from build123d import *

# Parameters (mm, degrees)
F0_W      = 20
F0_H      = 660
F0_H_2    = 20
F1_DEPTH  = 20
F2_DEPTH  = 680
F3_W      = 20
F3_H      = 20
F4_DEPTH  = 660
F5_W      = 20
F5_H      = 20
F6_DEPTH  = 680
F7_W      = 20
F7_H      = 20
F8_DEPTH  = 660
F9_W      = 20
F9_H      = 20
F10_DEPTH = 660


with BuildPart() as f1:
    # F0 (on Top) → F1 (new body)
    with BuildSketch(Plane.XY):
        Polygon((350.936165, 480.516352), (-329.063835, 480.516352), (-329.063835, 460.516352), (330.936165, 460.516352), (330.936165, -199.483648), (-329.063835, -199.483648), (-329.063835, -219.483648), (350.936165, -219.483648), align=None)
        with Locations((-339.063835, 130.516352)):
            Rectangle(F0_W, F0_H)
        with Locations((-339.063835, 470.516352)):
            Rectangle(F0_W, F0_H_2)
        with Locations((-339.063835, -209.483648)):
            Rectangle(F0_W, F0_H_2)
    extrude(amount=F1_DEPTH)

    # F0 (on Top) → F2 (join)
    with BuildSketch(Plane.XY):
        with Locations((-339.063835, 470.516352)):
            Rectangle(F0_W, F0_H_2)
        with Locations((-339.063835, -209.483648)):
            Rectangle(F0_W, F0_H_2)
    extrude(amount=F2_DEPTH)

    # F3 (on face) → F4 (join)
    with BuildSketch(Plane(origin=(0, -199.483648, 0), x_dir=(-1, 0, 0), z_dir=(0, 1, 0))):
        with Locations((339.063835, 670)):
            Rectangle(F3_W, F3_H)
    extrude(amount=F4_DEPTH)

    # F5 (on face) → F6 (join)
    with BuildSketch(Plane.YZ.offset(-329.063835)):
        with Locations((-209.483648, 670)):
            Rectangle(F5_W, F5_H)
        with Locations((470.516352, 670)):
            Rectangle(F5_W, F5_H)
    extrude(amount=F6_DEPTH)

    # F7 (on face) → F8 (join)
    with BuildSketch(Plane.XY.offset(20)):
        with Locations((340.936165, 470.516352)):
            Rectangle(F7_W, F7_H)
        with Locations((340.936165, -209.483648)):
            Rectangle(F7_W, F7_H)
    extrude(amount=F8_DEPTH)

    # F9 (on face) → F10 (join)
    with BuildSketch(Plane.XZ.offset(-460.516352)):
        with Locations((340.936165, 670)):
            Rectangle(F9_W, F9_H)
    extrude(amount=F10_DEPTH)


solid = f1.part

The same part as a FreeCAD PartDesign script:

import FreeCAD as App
import Part
import Sketcher

V = App.Vector


def add_polygon(sketch, points):
    """Adds a closed chain of lines whose ends are joined by coincident constraints."""
    first, n = sketch.GeometryCount, len(points)
    for a, b in zip(points, points[1:] + points[:1]):
        sketch.addGeometry(Part.LineSegment(App.Vector(*a, 0), App.Vector(*b, 0)), False)
    for i in range(n):
        sketch.addConstraint(Sketcher.Constraint("Coincident", first + i, 2, first + (i + 1) % n, 1))

doc = App.newDocument("Part")
params = doc.addObject("Spreadsheet::Sheet", "Params")
for row, (alias, value) in enumerate([
    ("sketch1_width", "700 mm"),
    ("sketch1_width2", "660 mm"),
    ("pad1_length", "20 mm"),
    ("sketch2_width", "20 mm"),
    ("pad2_length", "680 mm"),
    ("sketch3_width", "20 mm"),
    ("pad3_length", "660 mm"),
    ("sketch4_width", "20 mm"),
    ("pad4_length", "680 mm"),
    ("sketch5_width", "20 mm"),
    ("pad5_length", "660 mm"),
    ("sketch6_width", "20 mm"),
    ("pad6_length", "660 mm"),
], start=1):
    params.set(f"A{row}", alias)
    params.set(f"B{row}", "=" + value)
    params.setAlias(f"B{row}", alias)

body = doc.addObject("PartDesign::Body", "Body")

# Sketch on XY plane
sketch1 = doc.addObject("Sketcher::SketchObject", "Sketch")
body.addObject(sketch1)
sketch1.AttachmentSupport = (doc.XY_Plane, [""])
sketch1.MapMode = "FlatFace"
add_polygon(sketch1, [(-349, 481), (-349, -219), (351, -219), (351, 481)])  # lines 0-3
add_polygon(sketch1, [(331, -199), (-329, -199), (-329, 461), (331, 461)])  # lines 4-7
sketch1.addConstraint([
    Sketcher.Constraint("Vertical", 0),
    Sketcher.Constraint("Horizontal", 1),
    Sketcher.Constraint("Vertical", 2),
    Sketcher.Constraint("Horizontal", 3),
    Sketcher.Constraint("Horizontal", 4),
    Sketcher.Constraint("Vertical", 5),
    Sketcher.Constraint("Horizontal", 6),
    Sketcher.Constraint("Vertical", 7),
    Sketcher.Constraint("Equal", 3, 0),
    Sketcher.Constraint("Equal", 6, 5),
    Sketcher.Constraint("DistanceX", 1, 1, 1, 2, 700.0),
    Sketcher.Constraint("DistanceX", 4, 2, 4, 1, 660.0),
    Sketcher.Constraint("DistanceX", 0, 2, 4, 2, 20.0),
    Sketcher.Constraint("DistanceY", 0, 2, 4, 2, 20.0),
    Sketcher.Constraint("DistanceY", -1, 1, 2, 2, 480.516352),
    Sketcher.Constraint("DistanceX", 0, 2, -1, 1, 349.063835),
])
sketch1.setExpression("Constraints[18]", "Params.sketch1_width")
sketch1.setExpression("Constraints[19]", "Params.sketch1_width2")
pad1 = doc.addObject("PartDesign::Pad", "Pad")
body.addObject(pad1)
pad1.Profile = sketch1
pad1.setExpression("Length", "Params.pad1_length")

# Sketch on XY plane
sketch2 = doc.addObject("Sketcher::SketchObject", "Sketch001")
body.addObject(sketch2)
sketch2.AttachmentSupport = (doc.XY_Plane, [""])
sketch2.MapMode = "FlatFace"
add_polygon(sketch2, [(-349, 481), (-349, 461), (-329, 461), (-329, 481)])  # lines 0-3
add_polygon(sketch2, [(-349, -199), (-349, -219), (-329, -219), (-329, -199)])  # lines 4-7
sketch2.addConstraint([
    Sketcher.Constraint("Vertical", 0),
    Sketcher.Constraint("Horizontal", 1),
    Sketcher.Constraint("Vertical", 2),
    Sketcher.Constraint("Horizontal", 3),
    Sketcher.Constraint("Vertical", 4),
    Sketcher.Constraint("Horizontal", 5),
    Sketcher.Constraint("Vertical", 6),
    Sketcher.Constraint("Horizontal", 7),
    Sketcher.Constraint("Vertical", 3, 2, 4, 2),
    Sketcher.Constraint("Vertical", 2, 2, 5, 2),
    Sketcher.Constraint("Equal", 7, 0),
    Sketcher.Constraint("Equal", 2, 4),
    Sketcher.Constraint("DistanceX", 1, 1, 1, 2, 20.0),
    Sketcher.Constraint("DistanceY", 4, 2, 0, 2, 680.0),
    Sketcher.Constraint("DistanceY", -1, 1, 0, 2, 460.516352),
    Sketcher.Constraint("DistanceX", 0, 2, -1, 1, 349.063835),
])
sketch2.setExpression("Constraints[20]", "Params.sketch2_width")
pad2 = doc.addObject("PartDesign::Pad", "Pad001")
body.addObject(pad2)
pad2.Profile = sketch2
pad2.setExpression("Length", "Params.pad2_length")

# Sketch on XZ plane
sketch3 = doc.addObject("Sketcher::SketchObject", "Sketch002")
body.addObject(sketch3)
sketch3.AttachmentSupport = (doc.XZ_Plane, [""])
sketch3.MapMode = "FlatFace"
sketch3.AttachmentOffset = App.Placement(V(0, 0, 199.483648), App.Rotation())
add_polygon(sketch3, [(-329, 680), (-329, 660), (-349, 660), (-349, 680)])  # lines 0-3
sketch3.addConstraint([
    Sketcher.Constraint("Vertical", 0),
    Sketcher.Constraint("Horizontal", 1),
    Sketcher.Constraint("Vertical", 2),
    Sketcher.Constraint("Horizontal", 3),
    Sketcher.Constraint("Equal", 3, 0),
    Sketcher.Constraint("DistanceX", 1, 2, 1, 1, 20.0),
    Sketcher.Constraint("DistanceY", -1, 1, 0, 2, 660.0),
    Sketcher.Constraint("DistanceX", 0, 2, -1, 1, 329.063835),
])
sketch3.setExpression("Constraints[9]", "Params.sketch3_width")
pad3 = doc.addObject("PartDesign::Pad", "Pad002")
body.addObject(pad3)
pad3.Profile = sketch3
pad3.setExpression("Length", "Params.pad3_length")
pad3.Reversed = True

# Sketch on YZ plane
sketch4 = doc.addObject("Sketcher::SketchObject", "Sketch003")
body.addObject(sketch4)
sketch4.AttachmentSupport = (doc.YZ_Plane, [""])
sketch4.MapMode = "FlatFace"
sketch4.AttachmentOffset = App.Placement(V(0, 0, -329.063835), App.Rotation())
add_polygon(sketch4, [(-219, 680), (-219, 660), (-199, 660), (-199, 680)])  # lines 0-3
add_polygon(sketch4, [(461, 680), (461, 660), (481, 660), (481, 680)])  # lines 4-7
sketch4.addConstraint([
    Sketcher.Constraint("Vertical", 0),
    Sketcher.Constraint("Horizontal", 1),
    Sketcher.Constraint("Vertical", 2),
    Sketcher.Constraint("Horizontal", 3),
    Sketcher.Constraint("Vertical", 4),
    Sketcher.Constraint("Horizontal", 5),
    Sketcher.Constraint("Vertical", 6),
    Sketcher.Constraint("Horizontal", 7),
    Sketcher.Constraint("Horizontal", 1, 2, 4, 2),
    Sketcher.Constraint("Horizontal", 3, 2, 6, 2),
    Sketcher.Constraint("Equal", 3, 5),
    Sketcher.Constraint("Equal", 7, 0),
    Sketcher.Constraint("DistanceX", 1, 1, 1, 2, 20.0),
    Sketcher.Constraint("DistanceY", -1, 1, 0, 2, 660.0),
    Sketcher.Constraint("DistanceX", 1, 2, 4, 2, 660.0),
    Sketcher.Constraint("DistanceX", -1, 1, 4, 2, 460.516352),
])
sketch4.setExpression("Constraints[20]", "Params.sketch4_width")
pad4 = doc.addObject("PartDesign::Pad", "Pad003")
body.addObject(pad4)
pad4.Profile = sketch4
pad4.setExpression("Length", "Params.pad4_length")

# Sketch on XY plane
sketch5 = doc.addObject("Sketcher::SketchObject", "Sketch004")
body.addObject(sketch5)
sketch5.AttachmentSupport = (doc.XY_Plane, [""])
sketch5.MapMode = "FlatFace"
sketch5.AttachmentOffset = App.Placement(V(0, 0, 20), App.Rotation())
add_polygon(sketch5, [(331, 481), (331, 461), (351, 461), (351, 481)])  # lines 0-3
add_polygon(sketch5, [(331, -199), (331, -219), (351, -219), (351, -199)])  # lines 4-7
sketch5.addConstraint([
    Sketcher.Constraint("Vertical", 0),
    Sketcher.Constraint("Horizontal", 1),
    Sketcher.Constraint("Vertical", 2),
    Sketcher.Constraint("Horizontal", 3),
    Sketcher.Constraint("Vertical", 4),
    Sketcher.Constraint("Horizontal", 5),
    Sketcher.Constraint("Vertical", 6),
    Sketcher.Constraint("Horizontal", 7),
    Sketcher.Constraint("Vertical", 3, 2, 4, 2),
    Sketcher.Constraint("Vertical", 2, 2, 5, 2),
    Sketcher.Constraint("Equal", 7, 0),
    Sketcher.Constraint("Equal", 2, 4),
    Sketcher.Constraint("DistanceX", 1, 1, 1, 2, 20.0),
    Sketcher.Constraint("DistanceY", 4, 2, 0, 2, 680.0),
    Sketcher.Constraint("DistanceY", -1, 1, 0, 2, 460.516352),
    Sketcher.Constraint("DistanceX", -1, 1, 0, 2, 330.936165),
])
sketch5.setExpression("Constraints[20]", "Params.sketch5_width")
pad5 = doc.addObject("PartDesign::Pad", "Pad004")
body.addObject(pad5)
pad5.Profile = sketch5
pad5.setExpression("Length", "Params.pad5_length")

# Sketch on XZ plane
sketch6 = doc.addObject("Sketcher::SketchObject", "Sketch005")
body.addObject(sketch6)
sketch6.AttachmentSupport = (doc.XZ_Plane, [""])
sketch6.MapMode = "FlatFace"
sketch6.AttachmentOffset = App.Placement(V(0, 0, -460.516352), App.Rotation())
add_polygon(sketch6, [(331, 680), (331, 660), (351, 660), (351, 680)])  # lines 0-3
sketch6.addConstraint([
    Sketcher.Constraint("Vertical", 0),
    Sketcher.Constraint("Horizontal", 1),
    Sketcher.Constraint("Vertical", 2),
    Sketcher.Constraint("Horizontal", 3),
    Sketcher.Constraint("Equal", 3, 0),
    Sketcher.Constraint("DistanceX", 1, 1, 1, 2, 20.0),
    Sketcher.Constraint("DistanceY", -1, 1, 0, 2, 660.0),
    Sketcher.Constraint("DistanceX", -1, 1, 0, 2, 330.936165),
])
sketch6.setExpression("Constraints[9]", "Params.sketch6_width")
pad6 = doc.addObject("PartDesign::Pad", "Pad005")
body.addObject(pad6)
pad6.Profile = sketch6
pad6.setExpression("Length", "Params.pad6_length")

doc.recompute()
